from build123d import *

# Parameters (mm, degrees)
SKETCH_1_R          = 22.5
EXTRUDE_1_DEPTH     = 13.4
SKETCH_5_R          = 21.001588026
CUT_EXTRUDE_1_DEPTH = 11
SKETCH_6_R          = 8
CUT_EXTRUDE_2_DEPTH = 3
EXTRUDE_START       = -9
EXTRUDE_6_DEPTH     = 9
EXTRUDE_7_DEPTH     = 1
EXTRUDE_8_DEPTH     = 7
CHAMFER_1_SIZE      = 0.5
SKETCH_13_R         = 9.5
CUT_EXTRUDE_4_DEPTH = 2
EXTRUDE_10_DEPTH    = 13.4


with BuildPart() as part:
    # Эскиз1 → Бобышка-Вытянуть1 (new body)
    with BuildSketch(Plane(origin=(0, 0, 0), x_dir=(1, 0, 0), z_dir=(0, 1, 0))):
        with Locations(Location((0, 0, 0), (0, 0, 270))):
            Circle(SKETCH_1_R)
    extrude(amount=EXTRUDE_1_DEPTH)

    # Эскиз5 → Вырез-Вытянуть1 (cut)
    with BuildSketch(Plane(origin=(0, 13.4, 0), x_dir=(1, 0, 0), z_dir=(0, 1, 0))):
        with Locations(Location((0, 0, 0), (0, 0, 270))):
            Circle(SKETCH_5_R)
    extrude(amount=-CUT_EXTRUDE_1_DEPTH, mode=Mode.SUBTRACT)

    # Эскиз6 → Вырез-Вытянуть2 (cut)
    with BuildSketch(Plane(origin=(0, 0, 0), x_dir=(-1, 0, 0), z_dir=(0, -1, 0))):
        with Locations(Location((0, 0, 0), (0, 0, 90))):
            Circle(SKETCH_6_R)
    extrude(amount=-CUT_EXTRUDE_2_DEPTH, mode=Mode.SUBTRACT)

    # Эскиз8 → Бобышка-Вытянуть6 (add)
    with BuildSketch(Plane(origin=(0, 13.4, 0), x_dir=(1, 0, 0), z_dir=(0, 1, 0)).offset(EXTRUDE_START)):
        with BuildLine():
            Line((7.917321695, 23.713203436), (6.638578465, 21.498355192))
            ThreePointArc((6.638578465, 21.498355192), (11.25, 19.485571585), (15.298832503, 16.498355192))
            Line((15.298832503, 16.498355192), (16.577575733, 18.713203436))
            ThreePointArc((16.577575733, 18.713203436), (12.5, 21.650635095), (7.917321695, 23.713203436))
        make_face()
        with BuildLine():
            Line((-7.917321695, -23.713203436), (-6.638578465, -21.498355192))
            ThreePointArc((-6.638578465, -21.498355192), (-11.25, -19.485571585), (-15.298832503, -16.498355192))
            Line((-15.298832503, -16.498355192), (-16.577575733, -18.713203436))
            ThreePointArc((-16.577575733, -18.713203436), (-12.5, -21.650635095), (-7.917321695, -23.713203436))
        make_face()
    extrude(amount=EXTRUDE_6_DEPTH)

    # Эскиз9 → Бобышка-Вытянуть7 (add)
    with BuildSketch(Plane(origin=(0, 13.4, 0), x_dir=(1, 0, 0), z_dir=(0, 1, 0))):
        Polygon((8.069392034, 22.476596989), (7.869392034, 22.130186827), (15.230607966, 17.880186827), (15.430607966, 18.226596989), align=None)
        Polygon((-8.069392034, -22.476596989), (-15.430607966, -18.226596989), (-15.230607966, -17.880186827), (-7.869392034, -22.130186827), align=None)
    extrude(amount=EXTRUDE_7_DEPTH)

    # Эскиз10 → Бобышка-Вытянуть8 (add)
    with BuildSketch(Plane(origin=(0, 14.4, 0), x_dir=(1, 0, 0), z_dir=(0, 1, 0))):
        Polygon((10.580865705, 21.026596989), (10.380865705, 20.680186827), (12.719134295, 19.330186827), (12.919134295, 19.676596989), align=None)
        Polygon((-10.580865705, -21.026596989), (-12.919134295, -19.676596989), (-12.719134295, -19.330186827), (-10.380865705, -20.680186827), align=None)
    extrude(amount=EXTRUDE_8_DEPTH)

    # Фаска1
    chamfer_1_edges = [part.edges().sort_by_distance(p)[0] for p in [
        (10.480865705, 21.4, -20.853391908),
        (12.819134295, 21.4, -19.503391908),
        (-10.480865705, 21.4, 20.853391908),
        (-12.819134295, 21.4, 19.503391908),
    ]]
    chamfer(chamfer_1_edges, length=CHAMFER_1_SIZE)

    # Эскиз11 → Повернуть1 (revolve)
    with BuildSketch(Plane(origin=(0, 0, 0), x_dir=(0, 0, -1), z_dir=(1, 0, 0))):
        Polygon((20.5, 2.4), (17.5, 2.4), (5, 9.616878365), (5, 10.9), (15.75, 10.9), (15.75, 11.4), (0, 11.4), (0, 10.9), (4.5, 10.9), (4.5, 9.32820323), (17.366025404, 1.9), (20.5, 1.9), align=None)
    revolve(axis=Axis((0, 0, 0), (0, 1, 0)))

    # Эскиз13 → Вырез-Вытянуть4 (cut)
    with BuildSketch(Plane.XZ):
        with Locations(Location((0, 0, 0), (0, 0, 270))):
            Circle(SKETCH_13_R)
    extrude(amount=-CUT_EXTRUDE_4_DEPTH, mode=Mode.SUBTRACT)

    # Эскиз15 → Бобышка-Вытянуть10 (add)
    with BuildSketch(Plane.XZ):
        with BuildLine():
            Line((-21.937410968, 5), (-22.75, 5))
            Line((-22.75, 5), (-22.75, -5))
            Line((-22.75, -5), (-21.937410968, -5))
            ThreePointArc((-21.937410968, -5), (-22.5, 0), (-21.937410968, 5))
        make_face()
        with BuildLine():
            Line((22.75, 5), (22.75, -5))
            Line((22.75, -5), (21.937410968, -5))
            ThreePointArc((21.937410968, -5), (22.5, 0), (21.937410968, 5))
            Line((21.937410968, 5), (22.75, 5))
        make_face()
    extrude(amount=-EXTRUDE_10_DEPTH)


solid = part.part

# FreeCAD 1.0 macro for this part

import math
import FreeCAD as App
import Part
import Sketcher
Q = App.Units.Quantity


def edges_at(feature, points):
    """Names of the edges that pass closest to the given points."""
    edges = feature.Shape.Edges
    near = lambda p: min(range(len(edges)), key=lambda i: edges[i].distToShape(Part.Vertex(*p))[0])
    return sorted({f"Edge{near(p) + 1}" for p in points})


def add_polygon(sketch, points):
    """Adds a closed chain of lines whose ends are joined by coincident constraints."""
    first, n = sketch.GeometryCount, len(points)
    for a, b in zip(points, points[1:] + points[:1]):
        sketch.addGeometry(Part.LineSegment(App.Vector(*a, 0), App.Vector(*b, 0)), False)
    for i in range(n):
        sketch.addConstraint(Sketcher.Constraint("Coincident", first + i, 2, first + (i + 1) % n, 1))

doc = App.newDocument("Part")
body = doc.addObject("PartDesign::Body", "Body")

# Sketch on XZ plane
sketch1 = body.newObject("Sketcher::SketchObject", "Sketch")
sketch1.AttachmentSupport = (doc.getObject("XZ_Plane"), [""])
sketch1.MapMode = "FlatFace"
sketch1.addGeometry(Part.Circle(App.Vector(0, 0, 0), App.Vector(0, 0, 1), 22), False)
sketch1.addConstraint([
    Sketcher.Constraint("Coincident", 0, 3, -1, 1),
    Sketcher.Constraint("Diameter", 0, Q("45 mm")),
])
pad1 = body.newObject("PartDesign::Pad", "Pad")
pad1.Profile = sketch1
pad1.Length = 13.4
pad1.Reversed = True

# Sketch on XZ plane
sketch2 = body.newObject("Sketcher::SketchObject", "Sketch001")
sketch2.AttachmentSupport = (doc.getObject("XZ_Plane"), [""])
sketch2.MapMode = "FlatFace"
sketch2.AttachmentOffset = App.Placement(App.Vector(0, 0, -13.4), App.Rotation())
sketch2.addGeometry(Part.Circle(App.Vector(0, 0, 0), App.Vector(0, 0, 1), 21), False)
sketch2.addConstraint([
    Sketcher.Constraint("Coincident", 0, 3, -1, 1),
    Sketcher.Constraint("Diameter", 0, Q("42.003176 mm")),
])
pocket1 = body.newObject("PartDesign::Pocket", "Pocket")
pocket1.Profile = sketch2
pocket1.Length = 11
pocket1.Reversed = True

# Sketch on XZ plane
sketch3 = body.newObject("Sketcher::SketchObject", "Sketch002")
sketch3.AttachmentSupport = (doc.getObject("XZ_Plane"), [""])
sketch3.MapMode = "FlatFace"
sketch3.addGeometry(Part.Circle(App.Vector(0, 0, 0), App.Vector(0, 0, 1), 8), False)
sketch3.addConstraint([
    Sketcher.Constraint("Coincident", 0, 3, -1, 1),
    Sketcher.Constraint("Diameter", 0, Q("16 mm")),
])
pocket2 = body.newObject("PartDesign::Pocket", "Pocket001")
pocket2.Profile = sketch3
pocket2.Length = 3

# Sketch on XZ plane
sketch4 = body.newObject("Sketcher::SketchObject", "Sketch003")
sketch4.AttachmentSupport = (doc.getObject("XZ_Plane"), [""])
sketch4.MapMode = "FlatFace"
sketch4.AttachmentOffset = App.Placement(App.Vector(0, 0, -4.4), App.Rotation())
sketch4.addGeometry([
    Part.LineSegment(App.Vector(7.9, -23.7, 0), App.Vector(6.6, -21.5, 0)),  # 0
    Part.ArcOfCircle(Part.Circle(App.Vector(0, 0, 0), App.Vector(0, 0, 1), 22.5), math.radians(-73), math.radians(-47)),  # 1
    Part.LineSegment(App.Vector(15.3, -16.5, 0), App.Vector(16.6, -18.7, 0)),  # 2
    Part.ArcOfCircle(Part.Circle(App.Vector(0, 0, 0), App.Vector(0, 0, 1), 25), math.radians(-72), math.radians(-48)),  # 3
    Part.LineSegment(App.Vector(-7.9, 23.7, 0), App.Vector(-6.6, 21.5, 0)),  # 4
    Part.ArcOfCircle(Part.Circle(App.Vector(0, 0, 0), App.Vector(0, 0, 1), 22.5), math.radians(107), math.radians(133)),  # 5
    Part.LineSegment(App.Vector(-15.3, 16.5, 0), App.Vector(-16.6, 18.7, 0)),  # 6
    Part.ArcOfCircle(Part.Circle(App.Vector(0, 0, 0), App.Vector(0, 0, 1), 25), math.radians(108), math.radians(132)),  # 7
], False)
sketch4.addConstraint([
    Sketcher.Constraint("Coincident", 0, 2, 1, 1),
    Sketcher.Constraint("Coincident", 1, 2, 2, 1),
    Sketcher.Constraint("Coincident", 2, 2, 3, 2),
    Sketcher.Constraint("Coincident", 3, 1, 0, 1),
    Sketcher.Constraint("Coincident", 4, 2, 5, 1),
    Sketcher.Constraint("Coincident", 5, 2, 6, 1),
    Sketcher.Constraint("Coincident", 6, 2, 7, 2),
    Sketcher.Constraint("Coincident", 7, 1, 4, 1),
    Sketcher.Constraint("Coincident", 1, 3, -1, 1),
    Sketcher.Constraint("Coincident", 3, 3, -1, 1),
    Sketcher.Constraint("Coincident", 5, 3, -1, 1),
    Sketcher.Constraint("Coincident", 7, 3, -1, 1),
    Sketcher.Constraint("Equal", 1, 5),
    Sketcher.Constraint("Equal", 3, 7),
    Sketcher.Constraint("Parallel", 0, 2),
    Sketcher.Constraint("Parallel", 2, 4),
    Sketcher.Constraint("Parallel", 4, 6),
    Sketcher.Constraint("Equal", 0, 2),
    Sketcher.Constraint("Equal", 2, 4),
    Sketcher.Constraint("Equal", 4, 6),
    Sketcher.Constraint("Radius", 3, Q("25 mm")),
    Sketcher.Constraint("Radius", 1, Q("22.5 mm")),
    Sketcher.Constraint("Angle", 0, Q("120 deg")),
    Sketcher.Constraint("DistanceY", 0, 2, 1, 2, Q("5 mm")),
])
pad2 = body.newObject("PartDesign::Pad", "Pad001")
pad2.Profile = sketch4
pad2.Length = 9
pad2.Reversed = True

# Sketch on XZ plane
sketch5 = body.newObject("Sketcher::SketchObject", "Sketch004")
sketch5.AttachmentSupport = (doc.getObject("XZ_Plane"), [""])
sketch5.MapMode = "FlatFace"
sketch5.AttachmentOffset = App.Placement(App.Vector(0, 0, -13.4), App.Rotation())
add_polygon(sketch5, [(8.07, -22.48), (7.87, -22.13), (15.23, -17.88), (15.43, -18.23)])  # lines 0-3
add_polygon(sketch5, [(-15.43, 18.23), (-8.07, 22.48), (-7.87, 22.13), (-15.23, 17.88)])  # lines 4-7
sketch5.addConstraint([
    Sketcher.Constraint("Symmetric", 3, 2, 4, 2, -1, 1),
    Sketcher.Constraint("Symmetric", 0, 2, 5, 2, -1, 1),
    Sketcher.Constraint("Symmetric", 1, 2, 6, 2, -1, 1),
    Sketcher.Constraint("Symmetric", 2, 2, 7, 2, -1, 1),
    Sketcher.Constraint("Perpendicular", 0, 1),
    Sketcher.Constraint("Perpendicular", 1, 2),
    Sketcher.Constraint("Perpendicular", 2, 3),
    Sketcher.Constraint("Angle", 0, Q("120 deg")),
    Sketcher.Constraint("Distance", 0, Q("0.4 mm")),
    Sketcher.Constraint("Distance", 1, Q("8.5 mm")),
    Sketcher.Constraint("DistanceX", 4, 2, 1, 2, Q("23.3 mm")),
    Sketcher.Constraint("DistanceY", 0, 2, -1, 1, Q("22.130187 mm")),
])
pad3 = body.newObject("PartDesign::Pad", "Pad002")
pad3.Profile = sketch5
pad3.Length = 1
pad3.Reversed = True

# Sketch on XZ plane
sketch6 = body.newObject("Sketcher::SketchObject", "Sketch005")
sketch6.AttachmentSupport = (doc.getObject("XZ_Plane"), [""])
sketch6.MapMode = "FlatFace"
sketch6.AttachmentOffset = App.Placement(App.Vector(0, 0, -14.4), App.Rotation())
add_polygon(sketch6, [(10.58, -21.03), (10.38, -20.68), (12.72, -19.33), (12.92, -19.68)])  # lines 0-3
add_polygon(sketch6, [(-12.92, 19.68), (-10.58, 21.03), (-10.38, 20.68), (-12.72, 19.33)])  # lines 4-7
sketch6.addConstraint([
    Sketcher.Constraint("Symmetric", 3, 2, 4, 2, -1, 1),
    Sketcher.Constraint("Symmetric", 0, 2, 5, 2, -1, 1),
    Sketcher.Constraint("Symmetric", 1, 2, 6, 2, -1, 1),
    Sketcher.Constraint("Symmetric", 2, 2, 7, 2, -1, 1),
    Sketcher.Constraint("Perpendicular", 0, 1),
    Sketcher.Constraint("Perpendicular", 1, 2),
    Sketcher.Constraint("Perpendicular", 2, 3),
    Sketcher.Constraint("Angle", 0, Q("120 deg")),
    Sketcher.Constraint("Distance", 0, Q("0.4 mm")),
    Sketcher.Constraint("Distance", 1, Q("2.7 mm")),
    Sketcher.Constraint("DistanceX", 4, 2, 1, 2, Q("23.3 mm")),
    Sketcher.Constraint("DistanceY", 0, 2, -1, 1, Q("20.680187 mm")),
])
pad4 = body.newObject("PartDesign::Pad", "Pad003")
pad4.Profile = sketch6
pad4.Length = 7
pad4.Reversed = True
doc.recompute()

chamfer = body.newObject("PartDesign::Chamfer", "Chamfer")
chamfer.Base = (pad4, edges_at(pad4, [
    (10.481, 21.4, -20.853),
    (12.819, 21.4, -19.503),
    (-10.481, 21.4, 20.853),
    (-12.819, 21.4, 19.503),
]))
chamfer.Size = 0.5

# Sketch on YZ plane
sketch7 = body.newObject("Sketcher::SketchObject", "Sketch006")
sketch7.AttachmentSupport = (doc.getObject("YZ_Plane"), [""])
sketch7.MapMode = "FlatFace"
add_polygon(sketch7, [(2.4, -20.5), (2.4, -17.5), (9.6, -5), (10.9, -5), (10.9, -15.8), (11.4, -15.8), (11.4, 0), (10.9, 0), (10.9, -4.5), (9.3, -4.5), (1.9, -17.4), (1.9, -20.5)])  # lines 0-11
sketch7.addConstraint([
    Sketcher.Constraint("Vertical", 0),
    Sketcher.Constraint("Horizontal", 2),
    Sketcher.Constraint("Vertical", 3),
    Sketcher.Constraint("Horizontal", 4),
    Sketcher.Constraint("Vertical", 5),
    Sketcher.Constraint("Horizontal", 6),
    Sketcher.Constraint("Vertical", 7),
    Sketcher.Constraint("Horizontal", 8),
    Sketcher.Constraint("Vertical", 10),
    Sketcher.Constraint("Horizontal", 11),
    Sketcher.Constraint("PointOnObject", 5, 2, -1),
    Sketcher.Constraint("Parallel", 1, 9),
    Sketcher.Constraint("Vertical", 3, 2, 6, 2),
    Sketcher.Constraint("Equal", 6, 11),
    Sketcher.Constraint("DistanceY", 0, 1, 0, 2, Q("3 mm")),
    Sketcher.Constraint("Angle", 1, Q("60 deg")),
    Sketcher.Constraint("DistanceX", 4, 1, 4, 2, Q("0.5 mm")),
    Sketcher.Constraint("DistanceY", 7, 2, 7, 1, Q("4.5 mm")),
    Sketcher.Constraint("DistanceY", 1, 2, -1, 1, Q("5 mm")),
    Sketcher.Constraint("DistanceX", 0, 2, 4, 2, Q("9 mm")),
    Sketcher.Constraint("DistanceY", 3, 2, 3, 1, Q("10.75 mm")),
    Sketcher.Constraint("DistanceX", -1, 1, 0, 2, Q("2.4 mm")),
    Sketcher.Constraint("DistanceY", 0, 2, -1, 1, Q("17.5 mm")),
    Sketcher.Constraint("DistanceX", 8, 2, 8, 1, Q("1.571797 mm")),
])
revolution = body.newObject("PartDesign::Revolution", "Revolution")
revolution.Profile = sketch7
revolution.ReferenceAxis = (sketch7, ["H_Axis"])
revolution.Angle = 360

# Sketch on XZ plane
sketch8 = body.newObject("Sketcher::SketchObject", "Sketch007")
sketch8.AttachmentSupport = (doc.getObject("XZ_Plane"), [""])
sketch8.MapMode = "FlatFace"
sketch8.addGeometry(Part.Circle(App.Vector(0, 0, 0), App.Vector(0, 0, 1), 10), False)
sketch8.addConstraint([
    Sketcher.Constraint("Coincident", 0, 3, -1, 1),
    Sketcher.Constraint("Diameter", 0, Q("19 mm")),
])
pocket3 = body.newObject("PartDesign::Pocket", "Pocket002")
pocket3.Profile = sketch8
pocket3.Length = 2

# Sketch on XZ plane
sketch9 = body.newObject("Sketcher::SketchObject", "Sketch008")
sketch9.AttachmentSupport = (doc.getObject("XZ_Plane"), [""])
sketch9.MapMode = "FlatFace"
sketch9.addGeometry([
    Part.LineSegment(App.Vector(-21.9, 5, 0), App.Vector(-22.8, 5, 0)),  # 0
    Part.LineSegment(App.Vector(-22.8, 5, 0), App.Vector(-22.8, -5, 0)),  # 1
    Part.LineSegment(App.Vector(-22.8, -5, 0), App.Vector(-21.9, -5, 0)),  # 2
    Part.ArcOfCircle(Part.Circle(App.Vector(0, 0, 0), App.Vector(0, 0, 1), 22.5), math.radians(167), math.radians(193)),  # 3
    Part.LineSegment(App.Vector(22.8, -5, 0), App.Vector(22.8, 5, 0)),  # 4
    Part.LineSegment(App.Vector(22.8, 5, 0), App.Vector(21.9, 5, 0)),  # 5
    Part.ArcOfCircle(Part.Circle(App.Vector(0, 0, 0), App.Vector(0, 0, 1), 22.5), math.radians(-13), math.radians(13)),  # 6
    Part.LineSegment(App.Vector(21.9, -5, 0), App.Vector(22.8, -5, 0)),  # 7
], False)
sketch9.addConstraint([
    Sketcher.Constraint("Coincident", 0, 2, 1, 1),
    Sketcher.Constraint("Coincident", 1, 2, 2, 1),
    Sketcher.Constraint("Coincident", 2, 2, 3, 2),
    Sketcher.Constraint("Coincident", 3, 1, 0, 1),
    Sketcher.Constraint("Coincident", 4, 2, 5, 1),
    Sketcher.Constraint("Coincident", 5, 2, 6, 2),
    Sketcher.Constraint("Coincident", 6, 1, 7, 1),
    Sketcher.Constraint("Coincident", 7, 2, 4, 1),
    Sketcher.Constraint("Horizontal", 0),
    Sketcher.Constraint("Vertical", 1),
    Sketcher.Constraint("Horizontal", 2),
    Sketcher.Constraint("Vertical", 4),
    Sketcher.Constraint("Horizontal", 5),
    Sketcher.Constraint("Horizontal", 7),
    Sketcher.Constraint("Coincident", 3, 3, -1, 1),
    Sketcher.Constraint("Coincident", 6, 3, -1, 1),
    Sketcher.Constraint("Equal", 3, 6),
    Sketcher.Constraint("Symmetric", 1, 2, 4, 2, -1, 1),
    Sketcher.Constraint("Horizontal", 3, 1, 4, 2),
    Sketcher.Constraint("Horizontal", 2, 2, 6, 1),
    Sketcher.Constraint("Radius", 3, Q("22.5 mm")),
    Sketcher.Constraint("DistanceY", 1, 2, 1, 1, Q("10 mm")),
    Sketcher.Constraint("DistanceX", 0, 2, 4, 2, Q("45.5 mm")),
])
pad5 = body.newObject("PartDesign::Pad", "Pad004")
pad5.Profile = sketch9
pad5.Length = 13.4
pad5.Reversed = True

doc.recompute()
